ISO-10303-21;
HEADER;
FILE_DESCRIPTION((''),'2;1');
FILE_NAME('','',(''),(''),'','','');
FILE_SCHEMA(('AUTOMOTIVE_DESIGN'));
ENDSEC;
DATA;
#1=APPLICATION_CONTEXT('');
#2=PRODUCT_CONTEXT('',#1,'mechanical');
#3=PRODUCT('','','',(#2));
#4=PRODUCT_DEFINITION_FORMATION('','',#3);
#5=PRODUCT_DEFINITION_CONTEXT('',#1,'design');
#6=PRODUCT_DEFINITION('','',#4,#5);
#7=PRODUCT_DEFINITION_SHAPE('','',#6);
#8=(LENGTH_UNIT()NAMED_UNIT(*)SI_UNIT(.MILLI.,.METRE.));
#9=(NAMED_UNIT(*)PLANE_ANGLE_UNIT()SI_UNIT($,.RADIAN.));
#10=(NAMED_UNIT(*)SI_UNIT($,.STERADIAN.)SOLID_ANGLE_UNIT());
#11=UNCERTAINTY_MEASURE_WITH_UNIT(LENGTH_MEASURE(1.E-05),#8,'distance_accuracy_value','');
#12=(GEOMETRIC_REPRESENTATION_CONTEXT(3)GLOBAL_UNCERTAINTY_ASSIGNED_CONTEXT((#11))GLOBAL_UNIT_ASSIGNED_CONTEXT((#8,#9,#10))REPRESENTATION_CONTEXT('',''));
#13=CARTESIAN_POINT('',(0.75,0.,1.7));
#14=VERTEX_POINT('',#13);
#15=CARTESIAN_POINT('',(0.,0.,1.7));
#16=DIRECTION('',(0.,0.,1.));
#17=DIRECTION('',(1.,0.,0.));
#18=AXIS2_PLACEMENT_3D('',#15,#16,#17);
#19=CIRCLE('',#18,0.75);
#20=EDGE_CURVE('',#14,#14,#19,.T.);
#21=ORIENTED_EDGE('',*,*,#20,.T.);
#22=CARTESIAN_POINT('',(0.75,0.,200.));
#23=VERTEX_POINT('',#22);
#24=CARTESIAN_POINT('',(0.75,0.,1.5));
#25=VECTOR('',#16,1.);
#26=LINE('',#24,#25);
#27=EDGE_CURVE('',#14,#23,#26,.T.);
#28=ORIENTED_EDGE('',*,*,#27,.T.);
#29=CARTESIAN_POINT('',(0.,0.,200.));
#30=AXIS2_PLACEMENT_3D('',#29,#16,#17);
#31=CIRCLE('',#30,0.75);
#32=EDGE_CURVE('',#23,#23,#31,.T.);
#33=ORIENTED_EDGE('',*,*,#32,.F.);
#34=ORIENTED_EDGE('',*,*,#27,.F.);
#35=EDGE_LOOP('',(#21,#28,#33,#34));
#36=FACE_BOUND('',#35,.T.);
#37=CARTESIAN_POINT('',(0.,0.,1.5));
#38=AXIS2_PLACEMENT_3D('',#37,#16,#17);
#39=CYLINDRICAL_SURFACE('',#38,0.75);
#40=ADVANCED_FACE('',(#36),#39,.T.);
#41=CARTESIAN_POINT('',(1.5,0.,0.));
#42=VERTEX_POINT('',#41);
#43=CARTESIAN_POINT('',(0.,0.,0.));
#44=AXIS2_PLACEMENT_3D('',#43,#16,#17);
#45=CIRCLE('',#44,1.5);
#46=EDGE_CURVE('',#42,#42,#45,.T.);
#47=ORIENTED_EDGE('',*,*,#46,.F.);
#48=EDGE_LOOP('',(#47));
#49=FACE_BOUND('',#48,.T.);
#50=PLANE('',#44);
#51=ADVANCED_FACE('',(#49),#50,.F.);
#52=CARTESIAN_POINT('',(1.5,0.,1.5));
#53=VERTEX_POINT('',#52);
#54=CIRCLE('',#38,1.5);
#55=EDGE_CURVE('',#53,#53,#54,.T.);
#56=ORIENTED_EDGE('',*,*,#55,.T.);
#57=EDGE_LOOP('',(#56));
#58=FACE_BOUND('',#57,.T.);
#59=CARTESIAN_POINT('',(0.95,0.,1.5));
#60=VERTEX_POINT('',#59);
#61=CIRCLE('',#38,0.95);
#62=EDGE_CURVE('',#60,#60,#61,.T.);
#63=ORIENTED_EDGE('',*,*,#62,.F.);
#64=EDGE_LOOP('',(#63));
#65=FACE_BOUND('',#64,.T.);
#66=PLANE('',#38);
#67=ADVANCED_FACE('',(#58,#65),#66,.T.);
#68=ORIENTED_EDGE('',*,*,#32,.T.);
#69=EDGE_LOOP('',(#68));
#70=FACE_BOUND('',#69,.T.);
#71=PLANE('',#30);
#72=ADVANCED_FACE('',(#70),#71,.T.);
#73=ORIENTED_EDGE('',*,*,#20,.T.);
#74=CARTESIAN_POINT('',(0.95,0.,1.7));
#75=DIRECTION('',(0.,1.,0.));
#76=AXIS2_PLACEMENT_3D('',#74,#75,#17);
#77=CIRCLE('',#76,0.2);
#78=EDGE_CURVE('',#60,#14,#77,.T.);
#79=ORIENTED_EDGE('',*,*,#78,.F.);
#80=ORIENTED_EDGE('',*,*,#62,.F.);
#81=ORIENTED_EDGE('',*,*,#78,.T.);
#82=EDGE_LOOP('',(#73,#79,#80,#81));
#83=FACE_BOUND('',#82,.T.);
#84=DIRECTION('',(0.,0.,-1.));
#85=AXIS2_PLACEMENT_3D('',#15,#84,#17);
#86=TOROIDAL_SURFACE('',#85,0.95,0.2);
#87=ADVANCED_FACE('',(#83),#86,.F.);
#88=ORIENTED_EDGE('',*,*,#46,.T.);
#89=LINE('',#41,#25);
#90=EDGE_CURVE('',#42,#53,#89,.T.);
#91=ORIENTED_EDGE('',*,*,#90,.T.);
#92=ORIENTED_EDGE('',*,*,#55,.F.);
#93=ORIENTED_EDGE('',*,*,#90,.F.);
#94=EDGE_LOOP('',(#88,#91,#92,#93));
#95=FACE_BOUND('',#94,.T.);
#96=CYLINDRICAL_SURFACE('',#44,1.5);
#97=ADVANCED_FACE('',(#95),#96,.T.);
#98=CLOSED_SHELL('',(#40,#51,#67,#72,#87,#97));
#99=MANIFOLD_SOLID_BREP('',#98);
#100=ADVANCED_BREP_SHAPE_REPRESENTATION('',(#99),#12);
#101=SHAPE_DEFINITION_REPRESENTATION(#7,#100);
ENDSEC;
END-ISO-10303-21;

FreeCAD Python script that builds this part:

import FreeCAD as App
import Part
import Sketcher
from FreeCAD import Vector
Q = App.Units.Quantity


def edges_at(feature, points):
    """Names of the edges that pass closest to the given points."""
    edges = feature.Shape.Edges
    near = lambda p: min(range(len(edges)), key=lambda i: edges[i].distToShape(Part.Vertex(*p))[0])
    return sorted({f"Edge{near(p) + 1}" for p in points})

doc = App.newDocument("Part")
params = doc.addObject("Spreadsheet::Sheet", "Params")
for row, (alias, value) in enumerate([
    ("sketch1_height", "200 mm"),
    ("sketch1_width", "1.5 mm"),
    ("revolution_angle", "360 deg"),
    ("fillet_radius", "0.2 mm"),
], start=1):
    params.set(f"A{row}", alias)
    params.set(f"B{row}", "=" + value)
    params.setAlias(f"B{row}", alias)

body = doc.addObject("PartDesign::Body", "Body")

# Sketch on XZ plane
sketch1 = body.newObject("Sketcher::SketchObject", "Sketch")
sketch1.AttachmentSupport = (doc.getObject("XZ_Plane"), [""])
sketch1.MapMode = "FlatFace"
sketch1.addGeometry([
    Part.LineSegment(Vector(1.5, 1.5, 0), Vector(1.5, 0, 0)),  # 0
    Part.LineSegment(Vector(1.5, 0, 0), Vector(0, 0, 0)),  # 1
    Part.LineSegment(Vector(0, 0, 0), Vector(0, 200, 0)),  # 2
    Part.LineSegment(Vector(0, 200, 0), Vector(0.75, 200, 0)),  # 3
    Part.LineSegment(Vector(0.75, 200, 0), Vector(0.75, 1.5, 0)),  # 4
    Part.LineSegment(Vector(0.75, 1.5, 0), Vector(1.5, 1.5, 0)),  # 5
], False)
sketch1.addConstraint([
    Sketcher.Constraint("Coincident", 0, 2, 1, 1),
    Sketcher.Constraint("Coincident", 1, 2, 2, 1),
    Sketcher.Constraint("Coincident", 2, 2, 3, 1),
    Sketcher.Constraint("Coincident", 3, 2, 4, 1),
    Sketcher.Constraint("Coincident", 4, 2, 5, 1),
    Sketcher.Constraint("Coincident", 5, 2, 0, 1),
    Sketcher.Constraint("Vertical", 0),
    Sketcher.Constraint("Horizontal", 1),
    Sketcher.Constraint("Vertical", 2),
    Sketcher.Constraint("Horizontal", 3),
    Sketcher.Constraint("Vertical", 4),
    Sketcher.Constraint("Horizontal", 5),
    Sketcher.Constraint("Coincident", 1, 2, -1, 1),
    Sketcher.Constraint("Equal", 3, 5),
    Sketcher.Constraint("Equal", 1, 0),
    Sketcher.Constraint("DistanceY", 2, 1, 2, 2, Q("200 mm")),
    Sketcher.Constraint("DistanceX", 1, 2, 1, 1, Q("1.5 mm")),
])
sketch1.setExpression("Constraints[15]", "Params.sketch1_height")
sketch1.setExpression("Constraints[16]", "Params.sketch1_width")
revolution = body.newObject("PartDesign::Revolution", "Revolution")
revolution.Profile = sketch1
revolution.ReferenceAxis = (sketch1, ["V_Axis"])
revolution.setExpression("Angle", "Params.revolution_angle")
doc.recompute()

fillet = body.newObject("PartDesign::Fillet", "Fillet")
fillet.Base = (revolution, edges_at(revolution, [(-0.75, 0, 1.5)]))
fillet.setExpression("Radius", "Params.fillet_radius")

doc.recompute()
